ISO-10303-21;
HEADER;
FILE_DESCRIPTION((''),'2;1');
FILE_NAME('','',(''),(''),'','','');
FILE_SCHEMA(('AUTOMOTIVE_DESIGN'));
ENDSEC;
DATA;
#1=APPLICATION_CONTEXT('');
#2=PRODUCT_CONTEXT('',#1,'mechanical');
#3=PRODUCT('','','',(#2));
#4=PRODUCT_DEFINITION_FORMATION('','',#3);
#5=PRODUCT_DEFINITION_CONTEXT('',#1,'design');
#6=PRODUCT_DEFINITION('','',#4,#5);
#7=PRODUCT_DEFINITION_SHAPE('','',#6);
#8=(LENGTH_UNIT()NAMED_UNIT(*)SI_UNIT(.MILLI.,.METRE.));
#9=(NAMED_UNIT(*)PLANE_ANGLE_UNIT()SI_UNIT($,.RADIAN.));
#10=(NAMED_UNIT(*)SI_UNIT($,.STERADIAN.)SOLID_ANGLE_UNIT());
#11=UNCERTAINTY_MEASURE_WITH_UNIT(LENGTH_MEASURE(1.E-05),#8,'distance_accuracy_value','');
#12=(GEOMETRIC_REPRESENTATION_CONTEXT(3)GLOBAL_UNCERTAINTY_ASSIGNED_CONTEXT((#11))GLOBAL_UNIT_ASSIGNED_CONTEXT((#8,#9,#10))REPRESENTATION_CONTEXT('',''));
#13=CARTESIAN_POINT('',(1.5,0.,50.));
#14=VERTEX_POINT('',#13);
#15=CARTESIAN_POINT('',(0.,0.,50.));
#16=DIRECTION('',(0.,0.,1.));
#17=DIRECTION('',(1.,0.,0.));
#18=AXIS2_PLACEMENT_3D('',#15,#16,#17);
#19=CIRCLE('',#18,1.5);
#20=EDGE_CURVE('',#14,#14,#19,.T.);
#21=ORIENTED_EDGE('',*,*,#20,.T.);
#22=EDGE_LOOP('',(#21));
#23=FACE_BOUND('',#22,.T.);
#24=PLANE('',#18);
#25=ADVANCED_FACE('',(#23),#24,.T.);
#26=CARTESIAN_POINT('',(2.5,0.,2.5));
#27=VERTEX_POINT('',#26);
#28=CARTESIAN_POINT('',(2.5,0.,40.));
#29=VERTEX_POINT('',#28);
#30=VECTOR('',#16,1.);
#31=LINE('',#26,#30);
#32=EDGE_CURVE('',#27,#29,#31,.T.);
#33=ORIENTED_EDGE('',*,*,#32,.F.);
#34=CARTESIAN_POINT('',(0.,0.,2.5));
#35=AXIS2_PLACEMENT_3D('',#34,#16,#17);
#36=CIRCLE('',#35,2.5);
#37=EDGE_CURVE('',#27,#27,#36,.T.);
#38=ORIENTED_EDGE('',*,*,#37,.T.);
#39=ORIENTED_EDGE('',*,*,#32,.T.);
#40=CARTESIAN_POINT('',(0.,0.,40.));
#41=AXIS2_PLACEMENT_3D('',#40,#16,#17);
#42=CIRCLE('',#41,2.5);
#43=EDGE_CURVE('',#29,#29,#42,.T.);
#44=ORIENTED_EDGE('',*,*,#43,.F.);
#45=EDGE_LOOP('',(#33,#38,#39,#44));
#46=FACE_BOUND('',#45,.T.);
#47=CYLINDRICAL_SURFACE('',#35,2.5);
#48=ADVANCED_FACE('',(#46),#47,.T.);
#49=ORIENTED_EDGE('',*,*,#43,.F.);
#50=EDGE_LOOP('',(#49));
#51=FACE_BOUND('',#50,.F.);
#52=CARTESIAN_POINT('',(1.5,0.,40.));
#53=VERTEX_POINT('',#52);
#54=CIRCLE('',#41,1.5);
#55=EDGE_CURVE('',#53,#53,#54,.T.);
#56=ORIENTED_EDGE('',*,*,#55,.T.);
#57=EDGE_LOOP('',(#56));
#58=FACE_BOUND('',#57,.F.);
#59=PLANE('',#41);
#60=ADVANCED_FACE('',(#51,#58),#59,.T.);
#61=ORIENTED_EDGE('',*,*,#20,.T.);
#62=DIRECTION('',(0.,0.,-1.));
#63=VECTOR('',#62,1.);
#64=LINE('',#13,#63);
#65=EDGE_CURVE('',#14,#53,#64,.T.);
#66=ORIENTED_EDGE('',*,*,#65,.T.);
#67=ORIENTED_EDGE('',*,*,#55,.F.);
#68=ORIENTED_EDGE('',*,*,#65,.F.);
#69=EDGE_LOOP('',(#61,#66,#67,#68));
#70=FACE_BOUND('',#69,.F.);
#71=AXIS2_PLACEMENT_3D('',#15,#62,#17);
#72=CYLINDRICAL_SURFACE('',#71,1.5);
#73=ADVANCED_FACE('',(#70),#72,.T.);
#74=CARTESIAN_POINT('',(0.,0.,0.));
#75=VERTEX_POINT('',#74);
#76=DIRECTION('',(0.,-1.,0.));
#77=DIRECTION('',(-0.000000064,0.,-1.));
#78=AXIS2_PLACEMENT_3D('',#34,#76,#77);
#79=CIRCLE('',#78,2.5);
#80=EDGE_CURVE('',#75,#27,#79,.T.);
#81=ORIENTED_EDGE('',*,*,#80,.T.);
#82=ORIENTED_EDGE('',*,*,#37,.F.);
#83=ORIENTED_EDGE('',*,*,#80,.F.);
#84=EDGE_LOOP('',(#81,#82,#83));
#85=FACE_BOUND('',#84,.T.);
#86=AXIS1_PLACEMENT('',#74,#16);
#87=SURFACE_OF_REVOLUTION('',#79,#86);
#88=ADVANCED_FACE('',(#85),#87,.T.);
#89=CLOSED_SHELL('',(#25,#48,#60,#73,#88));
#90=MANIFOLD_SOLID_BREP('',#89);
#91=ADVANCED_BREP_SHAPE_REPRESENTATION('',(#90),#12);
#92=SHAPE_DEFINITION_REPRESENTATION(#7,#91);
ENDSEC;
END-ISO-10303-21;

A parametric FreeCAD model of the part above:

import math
import FreeCAD as App
import Part
import Sketcher

V = App.Vector

doc = App.newDocument("Part")
params = doc.addObject("Spreadsheet::Sheet", "Params")
for row, (alias, value) in enumerate([
    ("sketch1_radius", "2.5 mm"),
    ("sketch1_width", "1 mm"),
    ("sketch1_height", "50 mm"),
    ("sketch1_height2", "10 mm"),
    ("revolution_angle", "360 deg"),
], start=1):
    params.set(f"A{row}", alias)
    params.set(f"B{row}", "=" + value)
    params.setAlias(f"B{row}", alias)

body = doc.addObject("PartDesign::Body", "Body")

sketch1 = body.newObject("Sketcher::SketchObject", "Sketch")
sketch1.AttachmentSupport = (doc.getObject("XZ_Plane"), [""])
sketch1.MapMode = "FlatFace"
sketch1.addGeometry([
    Part.LineSegment(V(0, 50, 0), V(0, 0, 0)),
    Part.ArcOfCircle(Part.Circle(V(0, 2.5, 0), V(0, 0, 1), 2.5), math.radians(-90), math.radians(0)),
    Part.LineSegment(V(2.5, 2.5, 0), V(2.5, 40, 0)),
    Part.LineSegment(V(2.5, 40, 0), V(1.5, 40, 0)),
    Part.LineSegment(V(1.5, 40, 0), V(1.5, 50, 0)),
    Part.LineSegment(V(1.5, 50, 0), V(0, 50, 0)),
], False)
sketch1.addConstraint([
    Sketcher.Constraint("Coincident", 0, 2, 1, 1),
    Sketcher.Constraint("Tangent", 1, 2, 2, 1),
    Sketcher.Constraint("Coincident", 2, 2, 3, 1),
    Sketcher.Constraint("Coincident", 3, 2, 4, 1),
    Sketcher.Constraint("Coincident", 4, 2, 5, 1),
    Sketcher.Constraint("Coincident", 5, 2, 0, 1),
    Sketcher.Constraint("Vertical", 0),
    Sketcher.Constraint("Vertical", 2),
    Sketcher.Constraint("Horizontal", 3),
    Sketcher.Constraint("Vertical", 4),
    Sketcher.Constraint("Horizontal", 5),
    Sketcher.Constraint("Coincident", 0, 2, -1, 1),
    Sketcher.Constraint("PointOnObject", 1, 3, -2),
    Sketcher.Constraint("Radius", 1, 2.5),
    Sketcher.Constraint("DistanceX", 3, 2, 3, 1, 1.0),
    Sketcher.Constraint("DistanceY", 0, 2, 0, 1, 50.0),
    Sketcher.Constraint("DistanceY", 4, 1, 4, 2, 10.0),
])
sketch1.setExpression("Constraints[13]", "Params.sketch1_radius")
sketch1.setExpression("Constraints[14]", "Params.sketch1_width")
sketch1.setExpression("Constraints[15]", "Params.sketch1_height")
sketch1.setExpression("Constraints[16]", "Params.sketch1_height2")
revolution = body.newObject("PartDesign::Revolution", "Revolution")
revolution.Profile = sketch1
revolution.ReferenceAxis = (sketch1, ["V_Axis"])
revolution.setExpression("Angle", "Params.revolution_angle")

doc.recompute()
